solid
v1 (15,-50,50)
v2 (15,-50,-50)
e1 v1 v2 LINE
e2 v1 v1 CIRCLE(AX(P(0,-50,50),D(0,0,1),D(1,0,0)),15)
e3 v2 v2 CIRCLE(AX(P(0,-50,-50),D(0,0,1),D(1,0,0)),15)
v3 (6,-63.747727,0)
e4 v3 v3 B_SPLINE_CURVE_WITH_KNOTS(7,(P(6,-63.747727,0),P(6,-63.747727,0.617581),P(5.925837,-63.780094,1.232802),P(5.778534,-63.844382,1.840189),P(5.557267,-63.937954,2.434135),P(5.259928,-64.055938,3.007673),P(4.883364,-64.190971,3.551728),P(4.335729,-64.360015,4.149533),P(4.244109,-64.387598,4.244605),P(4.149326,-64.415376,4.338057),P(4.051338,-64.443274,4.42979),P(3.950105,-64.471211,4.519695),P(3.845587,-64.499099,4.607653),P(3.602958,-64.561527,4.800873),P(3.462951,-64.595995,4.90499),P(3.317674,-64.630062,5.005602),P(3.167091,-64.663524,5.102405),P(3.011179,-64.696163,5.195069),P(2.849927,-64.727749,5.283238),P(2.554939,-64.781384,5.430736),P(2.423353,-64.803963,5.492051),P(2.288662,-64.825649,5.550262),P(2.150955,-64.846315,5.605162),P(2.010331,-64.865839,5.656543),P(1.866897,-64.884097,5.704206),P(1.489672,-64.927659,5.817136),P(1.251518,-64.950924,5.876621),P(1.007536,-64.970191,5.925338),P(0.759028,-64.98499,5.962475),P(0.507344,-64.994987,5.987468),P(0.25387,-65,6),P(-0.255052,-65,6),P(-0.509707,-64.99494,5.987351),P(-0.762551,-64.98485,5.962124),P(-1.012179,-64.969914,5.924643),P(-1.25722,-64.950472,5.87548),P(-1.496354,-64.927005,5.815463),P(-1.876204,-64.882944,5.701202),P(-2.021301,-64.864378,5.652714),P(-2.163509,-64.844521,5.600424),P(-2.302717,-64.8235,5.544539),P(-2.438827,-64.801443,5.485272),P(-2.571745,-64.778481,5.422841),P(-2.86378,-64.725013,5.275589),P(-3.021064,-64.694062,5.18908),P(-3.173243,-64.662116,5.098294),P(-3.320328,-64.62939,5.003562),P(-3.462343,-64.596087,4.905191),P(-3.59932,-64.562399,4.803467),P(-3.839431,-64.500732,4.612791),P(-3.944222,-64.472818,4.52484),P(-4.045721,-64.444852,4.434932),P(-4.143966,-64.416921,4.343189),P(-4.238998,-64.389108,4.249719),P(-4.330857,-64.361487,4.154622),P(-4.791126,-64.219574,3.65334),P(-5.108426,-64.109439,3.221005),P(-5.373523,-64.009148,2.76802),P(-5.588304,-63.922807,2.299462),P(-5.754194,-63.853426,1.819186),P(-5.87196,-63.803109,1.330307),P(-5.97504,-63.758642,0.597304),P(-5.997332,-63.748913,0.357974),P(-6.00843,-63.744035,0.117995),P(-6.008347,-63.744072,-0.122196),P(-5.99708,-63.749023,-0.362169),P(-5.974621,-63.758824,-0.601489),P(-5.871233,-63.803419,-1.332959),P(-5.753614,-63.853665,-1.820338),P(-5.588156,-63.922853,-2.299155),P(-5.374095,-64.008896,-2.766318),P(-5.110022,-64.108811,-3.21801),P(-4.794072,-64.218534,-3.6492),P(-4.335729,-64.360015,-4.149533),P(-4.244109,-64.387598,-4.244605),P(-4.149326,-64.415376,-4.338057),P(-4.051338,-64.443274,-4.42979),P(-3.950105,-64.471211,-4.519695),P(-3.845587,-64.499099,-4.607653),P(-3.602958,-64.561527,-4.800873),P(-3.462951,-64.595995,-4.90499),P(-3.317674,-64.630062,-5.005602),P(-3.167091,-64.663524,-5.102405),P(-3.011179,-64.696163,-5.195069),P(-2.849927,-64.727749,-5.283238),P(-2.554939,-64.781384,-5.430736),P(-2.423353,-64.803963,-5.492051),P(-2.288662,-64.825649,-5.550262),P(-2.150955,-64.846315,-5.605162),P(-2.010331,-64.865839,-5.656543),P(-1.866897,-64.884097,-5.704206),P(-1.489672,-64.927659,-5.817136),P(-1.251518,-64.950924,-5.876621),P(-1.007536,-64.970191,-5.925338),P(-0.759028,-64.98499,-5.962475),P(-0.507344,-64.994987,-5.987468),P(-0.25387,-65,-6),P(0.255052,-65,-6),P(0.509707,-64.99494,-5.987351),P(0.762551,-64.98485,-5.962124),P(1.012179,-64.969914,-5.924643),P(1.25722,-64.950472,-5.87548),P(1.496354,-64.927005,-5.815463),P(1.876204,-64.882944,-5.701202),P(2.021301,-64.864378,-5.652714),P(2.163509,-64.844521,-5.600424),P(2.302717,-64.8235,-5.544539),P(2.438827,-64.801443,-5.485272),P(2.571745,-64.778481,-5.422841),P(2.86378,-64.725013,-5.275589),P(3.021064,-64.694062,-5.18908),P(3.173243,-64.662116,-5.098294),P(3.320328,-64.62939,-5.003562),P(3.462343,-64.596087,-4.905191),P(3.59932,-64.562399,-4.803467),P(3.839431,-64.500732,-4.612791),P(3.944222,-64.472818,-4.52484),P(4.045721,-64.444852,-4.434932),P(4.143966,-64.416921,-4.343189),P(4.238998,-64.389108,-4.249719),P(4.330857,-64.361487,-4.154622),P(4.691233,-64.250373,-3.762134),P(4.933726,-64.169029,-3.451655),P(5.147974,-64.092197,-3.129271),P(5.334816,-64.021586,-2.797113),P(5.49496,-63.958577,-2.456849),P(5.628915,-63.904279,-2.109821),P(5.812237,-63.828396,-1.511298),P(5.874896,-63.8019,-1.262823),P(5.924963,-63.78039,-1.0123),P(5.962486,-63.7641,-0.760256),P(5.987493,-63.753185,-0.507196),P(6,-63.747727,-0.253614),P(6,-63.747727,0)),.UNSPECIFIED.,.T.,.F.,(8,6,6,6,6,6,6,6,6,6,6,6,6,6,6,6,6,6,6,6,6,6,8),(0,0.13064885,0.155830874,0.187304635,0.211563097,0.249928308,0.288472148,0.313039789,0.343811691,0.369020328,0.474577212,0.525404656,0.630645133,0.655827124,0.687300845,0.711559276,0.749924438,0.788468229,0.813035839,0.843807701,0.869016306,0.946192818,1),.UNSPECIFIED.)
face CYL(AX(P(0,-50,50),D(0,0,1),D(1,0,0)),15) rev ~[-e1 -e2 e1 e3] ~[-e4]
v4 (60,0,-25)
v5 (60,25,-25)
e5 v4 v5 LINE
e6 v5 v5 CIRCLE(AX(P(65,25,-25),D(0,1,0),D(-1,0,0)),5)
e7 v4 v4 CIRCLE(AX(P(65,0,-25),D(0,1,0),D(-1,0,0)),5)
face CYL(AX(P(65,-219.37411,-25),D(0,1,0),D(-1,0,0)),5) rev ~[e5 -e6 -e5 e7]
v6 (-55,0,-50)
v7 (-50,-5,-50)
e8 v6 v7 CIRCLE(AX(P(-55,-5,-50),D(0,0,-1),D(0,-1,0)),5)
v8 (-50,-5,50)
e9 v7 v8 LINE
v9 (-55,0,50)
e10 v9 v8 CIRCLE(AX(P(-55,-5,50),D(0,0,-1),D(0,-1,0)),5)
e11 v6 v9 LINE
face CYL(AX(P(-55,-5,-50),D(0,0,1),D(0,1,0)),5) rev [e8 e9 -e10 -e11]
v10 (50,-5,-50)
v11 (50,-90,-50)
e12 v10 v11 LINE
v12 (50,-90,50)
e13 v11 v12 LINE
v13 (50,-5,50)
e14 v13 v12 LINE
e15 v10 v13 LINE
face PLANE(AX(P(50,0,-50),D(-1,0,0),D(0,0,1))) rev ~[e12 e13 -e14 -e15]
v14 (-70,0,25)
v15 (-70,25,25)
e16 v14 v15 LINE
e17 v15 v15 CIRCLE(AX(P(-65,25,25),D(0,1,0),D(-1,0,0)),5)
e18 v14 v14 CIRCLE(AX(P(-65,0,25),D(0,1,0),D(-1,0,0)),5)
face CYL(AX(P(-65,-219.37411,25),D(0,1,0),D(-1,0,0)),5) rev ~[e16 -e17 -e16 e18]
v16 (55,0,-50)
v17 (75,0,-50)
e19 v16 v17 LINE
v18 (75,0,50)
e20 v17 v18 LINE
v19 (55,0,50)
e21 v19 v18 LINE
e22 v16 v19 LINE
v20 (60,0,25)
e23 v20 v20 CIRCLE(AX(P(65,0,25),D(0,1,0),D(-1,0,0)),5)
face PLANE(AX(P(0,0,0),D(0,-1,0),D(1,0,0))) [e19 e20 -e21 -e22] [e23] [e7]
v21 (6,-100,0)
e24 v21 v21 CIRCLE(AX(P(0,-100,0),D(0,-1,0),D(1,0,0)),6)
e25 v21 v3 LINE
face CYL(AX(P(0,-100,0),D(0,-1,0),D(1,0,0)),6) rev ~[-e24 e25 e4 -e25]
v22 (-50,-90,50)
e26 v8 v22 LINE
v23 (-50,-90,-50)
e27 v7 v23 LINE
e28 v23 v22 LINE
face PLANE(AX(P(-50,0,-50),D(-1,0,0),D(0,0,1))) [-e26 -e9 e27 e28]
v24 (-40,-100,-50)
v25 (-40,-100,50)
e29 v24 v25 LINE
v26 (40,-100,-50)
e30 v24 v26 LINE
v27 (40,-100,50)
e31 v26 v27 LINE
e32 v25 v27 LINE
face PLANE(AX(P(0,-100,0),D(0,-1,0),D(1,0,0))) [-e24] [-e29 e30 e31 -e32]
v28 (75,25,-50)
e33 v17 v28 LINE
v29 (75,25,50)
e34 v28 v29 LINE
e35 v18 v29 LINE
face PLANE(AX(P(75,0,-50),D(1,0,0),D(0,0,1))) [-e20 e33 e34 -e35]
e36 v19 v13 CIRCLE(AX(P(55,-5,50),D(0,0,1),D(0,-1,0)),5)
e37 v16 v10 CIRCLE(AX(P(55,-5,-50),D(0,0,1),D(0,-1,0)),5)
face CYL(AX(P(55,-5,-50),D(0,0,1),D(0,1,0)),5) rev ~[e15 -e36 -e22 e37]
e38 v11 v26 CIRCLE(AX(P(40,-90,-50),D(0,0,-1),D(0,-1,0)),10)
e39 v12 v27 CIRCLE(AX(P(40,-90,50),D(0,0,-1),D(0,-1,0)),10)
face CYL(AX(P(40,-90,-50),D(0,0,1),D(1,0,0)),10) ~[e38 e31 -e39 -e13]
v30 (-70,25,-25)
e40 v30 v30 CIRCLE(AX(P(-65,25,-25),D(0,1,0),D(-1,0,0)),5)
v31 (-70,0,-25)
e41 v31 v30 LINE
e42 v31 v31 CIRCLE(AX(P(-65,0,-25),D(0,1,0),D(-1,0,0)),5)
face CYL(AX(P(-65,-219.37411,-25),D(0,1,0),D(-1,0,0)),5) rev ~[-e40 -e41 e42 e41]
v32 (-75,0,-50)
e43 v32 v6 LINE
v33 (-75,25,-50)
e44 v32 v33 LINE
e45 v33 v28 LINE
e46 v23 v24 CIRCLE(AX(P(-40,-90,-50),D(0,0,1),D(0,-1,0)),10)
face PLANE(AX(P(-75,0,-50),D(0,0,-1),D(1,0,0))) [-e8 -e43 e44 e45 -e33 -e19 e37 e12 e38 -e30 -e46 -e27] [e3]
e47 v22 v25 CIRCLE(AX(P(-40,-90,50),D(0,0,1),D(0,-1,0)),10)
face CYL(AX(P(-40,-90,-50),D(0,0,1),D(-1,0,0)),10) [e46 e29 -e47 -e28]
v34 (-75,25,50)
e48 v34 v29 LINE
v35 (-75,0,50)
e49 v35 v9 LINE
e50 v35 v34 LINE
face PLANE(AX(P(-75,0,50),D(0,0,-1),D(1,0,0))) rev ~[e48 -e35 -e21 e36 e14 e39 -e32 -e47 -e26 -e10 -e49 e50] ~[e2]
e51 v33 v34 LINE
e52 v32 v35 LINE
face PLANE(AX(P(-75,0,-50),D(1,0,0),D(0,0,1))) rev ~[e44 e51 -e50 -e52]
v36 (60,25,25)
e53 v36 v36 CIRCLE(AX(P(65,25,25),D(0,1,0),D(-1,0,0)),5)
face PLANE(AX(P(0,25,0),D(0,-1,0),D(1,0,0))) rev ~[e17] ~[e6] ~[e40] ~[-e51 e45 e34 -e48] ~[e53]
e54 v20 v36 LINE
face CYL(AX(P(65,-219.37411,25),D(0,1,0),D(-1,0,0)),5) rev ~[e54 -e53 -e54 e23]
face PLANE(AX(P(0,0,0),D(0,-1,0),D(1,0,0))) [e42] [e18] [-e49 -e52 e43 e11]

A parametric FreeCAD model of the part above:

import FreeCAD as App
import Part
import Sketcher

V = App.Vector


def edges_at(feature, points):
    """Names of the edges that pass closest to the given points."""
    edges = feature.Shape.Edges
    near = lambda p: min(range(len(edges)), key=lambda i: edges[i].distToShape(Part.Vertex(*p))[0])
    return sorted({f"Edge{near(p) + 1}" for p in points})


def add_polygon(sketch, points):
    """Adds a closed chain of lines whose ends are joined by coincident constraints."""
    first, n = sketch.GeometryCount, len(points)
    for a, b in zip(points, points[1:] + points[:1]):
        sketch.addGeometry(Part.LineSegment(App.Vector(*a, 0), App.Vector(*b, 0)), False)
    for i in range(n):
        sketch.addConstraint(Sketcher.Constraint("Coincident", first + i, 2, first + (i + 1) % n, 1))

doc = App.newDocument("Part")
body = doc.addObject("PartDesign::Body", "Body")

# Sketch on XZ plane
sketch1 = doc.addObject("Sketcher::SketchObject", "Sketch")
body.addObject(sketch1)
sketch1.AttachmentSupport = (doc.XZ_Plane, [""])
sketch1.MapMode = "FlatFace"
add_polygon(sketch1, [(-50, 50), (-50, -50), (50, -50), (50, 50)])  # lines 0-3
sketch1.addConstraint([
    Sketcher.Constraint("Vertical", 0),
    Sketcher.Constraint("Horizontal", 1),
    Sketcher.Constraint("Vertical", 2),
    Sketcher.Constraint("Horizontal", 3),
    Sketcher.Constraint("Symmetric", 0, 2, 2, 2, -1, 1),
    Sketcher.Constraint("Equal", 3, 0),
    Sketcher.Constraint("DistanceX", 1, 1, 1, 2, 100.0),
])
pad1 = doc.addObject("PartDesign::Pad", "Pad")
body.addObject(pad1)
pad1.Profile = sketch1
pad1.Length = 100
doc.recompute()

fillet = doc.addObject("PartDesign::Fillet", "Fillet")
body.addObject(fillet)
fillet.Base = (pad1, edges_at(pad1, [(50, -100, 0), (-50, -100, 0)]))
fillet.Radius = 10

# Sketch on XY plane
sketch2 = doc.addObject("Sketcher::SketchObject", "Sketch001")
body.addObject(sketch2)
sketch2.AttachmentSupport = (doc.XY_Plane, [""])
sketch2.MapMode = "FlatFace"
sketch2.AttachmentOffset = App.Placement(V(0, 0, 50), App.Rotation())
sketch2.addGeometry(Part.Circle(V(0, -50, 0), V(0, 0, 1), 15), False)
sketch2.addConstraint([
    Sketcher.Constraint("PointOnObject", 0, 3, -2),
    Sketcher.Constraint("Diameter", 0, 30.0),
    Sketcher.Constraint("DistanceY", 0, 3, -1, 1, 50.0),
])
pocket1 = doc.addObject("PartDesign::Pocket", "Pocket")
body.addObject(pocket1)
pocket1.Profile = sketch2
pocket1.Type = "ThroughAll"

# Sketch on XZ plane
sketch3 = doc.addObject("Sketcher::SketchObject", "Sketch002")
body.addObject(sketch3)
sketch3.AttachmentSupport = (doc.XZ_Plane, [""])
sketch3.MapMode = "FlatFace"
sketch3.AttachmentOffset = App.Placement(V(0, 0, 100), App.Rotation())
sketch3.addGeometry(Part.Circle(V(0, 0, 0), V(0, 0, 1), 6), False)
sketch3.addConstraint([
    Sketcher.Constraint("Coincident", 0, 3, -1, 1),
    Sketcher.Constraint("Diameter", 0, 12.0),
])
pocket2 = doc.addObject("PartDesign::Pocket", "Pocket001")
body.addObject(pocket2)
pocket2.Profile = sketch3
pocket2.Length = 36.253273

# Sketch on XZ plane
sketch4 = doc.addObject("Sketcher::SketchObject", "Sketch003")
body.addObject(sketch4)
sketch4.AttachmentSupport = (doc.XZ_Plane, [""])
sketch4.MapMode = "FlatFace"
add_polygon(sketch4, [(-75, 50), (-75, -50), (75, -50), (75, 50)])  # lines 0-3
sketch4.addConstraint([
    Sketcher.Constraint("Vertical", 0),
    Sketcher.Constraint("Horizontal", 1),
    Sketcher.Constraint("Vertical", 2),
    Sketcher.Constraint("Horizontal", 3),
    Sketcher.Constraint("Symmetric", 0, 2, 2, 2, -1, 1),
    Sketcher.Constraint("DistanceX", 1, 1, 1, 2, 150.0),
    Sketcher.Constraint("DistanceY", 0, 2, 0, 1, 100.0),
])
pad2 = doc.addObject("PartDesign::Pad", "Pad001")
body.addObject(pad2)
pad2.Profile = sketch4
pad2.Length = 25
pad2.Reversed = True
doc.recompute()

fillet2 = doc.addObject("PartDesign::Fillet", "Fillet001")
body.addObject(fillet2)
fillet2.Base = (pad2, edges_at(pad2, [(50, 0, 0), (-50, 0, 0)]))
fillet2.Radius = 5

# Sketch on XZ plane
sketch5 = doc.addObject("Sketcher::SketchObject", "Sketch004")
body.addObject(sketch5)
sketch5.AttachmentSupport = (doc.XZ_Plane, [""])
sketch5.MapMode = "FlatFace"
sketch5.addGeometry([
    Part.Circle(V(-65, 25, 0), V(0, 0, 1), 5),
    Part.Circle(V(-65, -25, 0), V(0, 0, 1), 5),
    Part.Circle(V(65, 25, 0), V(0, 0, 1), 5),
    Part.Circle(V(65, -25, 0), V(0, 0, 1), 5),
], False)
sketch5.addConstraint([
    Sketcher.Constraint("Equal", 0, 1),
    Sketcher.Constraint("Equal", 1, 2),
    Sketcher.Constraint("Equal", 2, 3),
    Sketcher.Constraint("Symmetric", 1, 3, 2, 3, -1, 1),
    Sketcher.Constraint("Symmetric", 0, 3, 3, 3, -1, 1),
    Sketcher.Constraint("Symmetric", 0, 3, 2, 3, -2),
    Sketcher.Constraint("Diameter", 0, 10.0),
    Sketcher.Constraint("DistanceX", 0, 3, -1, 1, 65.0),
    Sketcher.Constraint("DistanceY", -1, 1, 0, 3, 25.0),
])
doc.recompute()
hole = doc.addObject("PartDesign::Hole", "Hole")
body.addObject(hole)
hole.Profile = sketch5
hole.ThreadType = "None"
hole.Diameter = 10
hole.DepthType = "ThroughAll"

doc.recompute()
